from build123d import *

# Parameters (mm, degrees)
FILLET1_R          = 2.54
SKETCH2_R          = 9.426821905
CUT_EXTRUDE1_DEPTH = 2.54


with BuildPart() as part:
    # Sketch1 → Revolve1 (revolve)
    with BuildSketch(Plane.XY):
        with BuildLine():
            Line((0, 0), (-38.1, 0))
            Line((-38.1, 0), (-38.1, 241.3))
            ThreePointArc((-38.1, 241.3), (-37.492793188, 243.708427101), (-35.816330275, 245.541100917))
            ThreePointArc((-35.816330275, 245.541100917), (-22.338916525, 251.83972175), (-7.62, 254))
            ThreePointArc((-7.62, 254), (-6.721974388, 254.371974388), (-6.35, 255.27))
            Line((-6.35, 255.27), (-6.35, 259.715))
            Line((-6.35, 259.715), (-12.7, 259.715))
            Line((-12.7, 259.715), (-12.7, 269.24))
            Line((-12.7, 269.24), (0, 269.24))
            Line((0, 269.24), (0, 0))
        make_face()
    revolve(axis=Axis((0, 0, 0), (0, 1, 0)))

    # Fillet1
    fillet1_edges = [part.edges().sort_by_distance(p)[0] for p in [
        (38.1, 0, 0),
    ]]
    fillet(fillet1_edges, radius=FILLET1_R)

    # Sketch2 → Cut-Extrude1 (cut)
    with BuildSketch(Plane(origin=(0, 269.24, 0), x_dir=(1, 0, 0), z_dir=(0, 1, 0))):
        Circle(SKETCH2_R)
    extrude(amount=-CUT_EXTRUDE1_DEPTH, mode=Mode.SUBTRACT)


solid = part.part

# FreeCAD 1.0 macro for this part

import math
import FreeCAD as App
import Part
import Sketcher
from FreeCAD import Vector
Q = App.Units.Quantity


def edges_at(feature, points):
    """Names of the edges that pass closest to the given points."""
    edges = feature.Shape.Edges
    near = lambda p: min(range(len(edges)), key=lambda i: edges[i].distToShape(Part.Vertex(*p))[0])
    return sorted({f"Edge{near(p) + 1}" for p in points})

doc = App.newDocument("Part")
body = doc.addObject("PartDesign::Body", "Body")

# Sketch on XY plane
sketch1 = doc.addObject("Sketcher::SketchObject", "Sketch")
body.addObject(sketch1)
sketch1.AttachmentSupport = (doc.XY_Plane, [""])
sketch1.MapMode = "FlatFace"
sketch1.addGeometry(Part.LineSegment(Vector(-38.1, 0, 0), Vector(0, 0, 0)), False)
sketch1.addGeometry(Part.LineSegment(Vector(0, 0, 0), Vector(0, 269.2, 0)), False)
sketch1.addGeometry(Part.LineSegment(Vector(0, 269.2, 0), Vector(-12.7, 269.2, 0)), False)
sketch1.addGeometry(Part.LineSegment(Vector(-12.7, 269.2, 0), Vector(-12.7, 259.7, 0)), False)
sketch1.addGeometry(Part.LineSegment(Vector(-12.7, 259.7, 0), Vector(-6.3, 259.7, 0)), False)
sketch1.addGeometry(Part.LineSegment(Vector(-6.3, 259.7, 0), Vector(-6.3, 255.3, 0)), False)
sketch1.addGeometry(Part.ArcOfCircle(Part.Circle(Vector(-7.6, 255.3, 0), Vector(0, 0, 1), 1.3), math.radians(-90), math.radians(0)), False)
sketch1.addGeometry(Part.ArcOfCircle(Part.Circle(Vector(-7.6, 202.8, 0), Vector(0, 0, 1), 51.2), math.radians(90), math.radians(123)), False)
sketch1.addGeometry(Part.ArcOfCircle(Part.Circle(Vector(-33, 241.3, 0), Vector(0, 0, 1), 5.1), math.radians(123), math.radians(180)), False)
sketch1.addGeometry(Part.LineSegment(Vector(-38.1, 241.3, 0), Vector(-38.1, 0, 0)), False)
sketch1.addConstraint(Sketcher.Constraint("Coincident", 0, 2, 1, 1))
sketch1.addConstraint(Sketcher.Constraint("Coincident", 1, 2, 2, 1))
sketch1.addConstraint(Sketcher.Constraint("Coincident", 2, 2, 3, 1))
sketch1.addConstraint(Sketcher.Constraint("Coincident", 3, 2, 4, 1))
sketch1.addConstraint(Sketcher.Constraint("Coincident", 4, 2, 5, 1))
sketch1.addConstraint(Sketcher.Constraint("Tangent", 5, 2, 6, 2))
sketch1.addConstraint(Sketcher.Constraint("Tangent", 6, 1, 7, 1))
sketch1.addConstraint(Sketcher.Constraint("Tangent", 7, 2, 8, 1))
sketch1.addConstraint(Sketcher.Constraint("Tangent", 8, 2, 9, 1))
sketch1.addConstraint(Sketcher.Constraint("Coincident", 9, 2, 0, 1))
sketch1.addConstraint(Sketcher.Constraint("Horizontal", 0))
sketch1.addConstraint(Sketcher.Constraint("Vertical", 1))
sketch1.addConstraint(Sketcher.Constraint("Horizontal", 2))
sketch1.addConstraint(Sketcher.Constraint("Vertical", 3))
sketch1.addConstraint(Sketcher.Constraint("Horizontal", 4))
sketch1.addConstraint(Sketcher.Constraint("Vertical", 5))
sketch1.addConstraint(Sketcher.Constraint("Vertical", 9))
sketch1.addConstraint(Sketcher.Constraint("Coincident", 0, 2, -1, 1))
sketch1.addConstraint(Sketcher.Constraint("Vertical", 6, 3, 7, 3))
sketch1.addConstraint(Sketcher.Constraint("Radius", 8, Q("0.2 in")))
sketch1.addConstraint(Sketcher.Constraint("Radius", 6, Q("0.05 in")))
sketch1.addConstraint(Sketcher.Constraint("DistanceX", 0, 1, 0, 2, Q("1.5 in")))
sketch1.addConstraint(Sketcher.Constraint("DistanceX", 2, 2, 2, 1, Q("0.5 in")))
sketch1.addConstraint(Sketcher.Constraint("DistanceY", 1, 1, 1, 2, Q("10.6 in")))
sketch1.addConstraint(Sketcher.Constraint("DistanceY", 9, 2, 9, 1, Q("9.5 in")))
sketch1.addConstraint(Sketcher.Constraint("DistanceY", -1, 1, 6, 1, Q("10 in")))
sketch1.addConstraint(Sketcher.Constraint("DistanceX", 8, 3, 6, 3, Q("1 in")))
sketch1.addConstraint(Sketcher.Constraint("DistanceY", 3, 2, 3, 1, Q("0.375 in")))
revolution = doc.addObject("PartDesign::Revolution", "Revolution")
body.addObject(revolution)
revolution.Profile = sketch1
revolution.ReferenceAxis = (sketch1, ["V_Axis"])
revolution.Angle = 360
doc.recompute()

fillet = doc.addObject("PartDesign::Fillet", "Fillet")
body.addObject(fillet)
fillet.Base = (revolution, edges_at(revolution, [(38.1, 0, 0)]))
fillet.Radius = Q("0.1 in")

# Sketch on XZ plane
sketch2 = doc.addObject("Sketcher::SketchObject", "Sketch001")
body.addObject(sketch2)
sketch2.AttachmentSupport = (doc.XZ_Plane, [""])
sketch2.MapMode = "FlatFace"
sketch2.AttachmentOffset = App.Placement(Vector(0, 0, -10.6 * 25.4), App.Rotation())
sketch2.addGeometry(Part.Circle(Vector(0, 0, 0), Vector(0, 0, 1), 9), False)
sketch2.addConstraint(Sketcher.Constraint("Coincident", 0, 3, -1, 1))
sketch2.addConstraint(Sketcher.Constraint("Diameter", 0, 18.853644))
pocket1 = doc.addObject("PartDesign::Pocket", "Pocket")
body.addObject(pocket1)
pocket1.Profile = sketch2
pocket1.Length = Q("0.1 in")
pocket1.Reversed = True

doc.recompute()
